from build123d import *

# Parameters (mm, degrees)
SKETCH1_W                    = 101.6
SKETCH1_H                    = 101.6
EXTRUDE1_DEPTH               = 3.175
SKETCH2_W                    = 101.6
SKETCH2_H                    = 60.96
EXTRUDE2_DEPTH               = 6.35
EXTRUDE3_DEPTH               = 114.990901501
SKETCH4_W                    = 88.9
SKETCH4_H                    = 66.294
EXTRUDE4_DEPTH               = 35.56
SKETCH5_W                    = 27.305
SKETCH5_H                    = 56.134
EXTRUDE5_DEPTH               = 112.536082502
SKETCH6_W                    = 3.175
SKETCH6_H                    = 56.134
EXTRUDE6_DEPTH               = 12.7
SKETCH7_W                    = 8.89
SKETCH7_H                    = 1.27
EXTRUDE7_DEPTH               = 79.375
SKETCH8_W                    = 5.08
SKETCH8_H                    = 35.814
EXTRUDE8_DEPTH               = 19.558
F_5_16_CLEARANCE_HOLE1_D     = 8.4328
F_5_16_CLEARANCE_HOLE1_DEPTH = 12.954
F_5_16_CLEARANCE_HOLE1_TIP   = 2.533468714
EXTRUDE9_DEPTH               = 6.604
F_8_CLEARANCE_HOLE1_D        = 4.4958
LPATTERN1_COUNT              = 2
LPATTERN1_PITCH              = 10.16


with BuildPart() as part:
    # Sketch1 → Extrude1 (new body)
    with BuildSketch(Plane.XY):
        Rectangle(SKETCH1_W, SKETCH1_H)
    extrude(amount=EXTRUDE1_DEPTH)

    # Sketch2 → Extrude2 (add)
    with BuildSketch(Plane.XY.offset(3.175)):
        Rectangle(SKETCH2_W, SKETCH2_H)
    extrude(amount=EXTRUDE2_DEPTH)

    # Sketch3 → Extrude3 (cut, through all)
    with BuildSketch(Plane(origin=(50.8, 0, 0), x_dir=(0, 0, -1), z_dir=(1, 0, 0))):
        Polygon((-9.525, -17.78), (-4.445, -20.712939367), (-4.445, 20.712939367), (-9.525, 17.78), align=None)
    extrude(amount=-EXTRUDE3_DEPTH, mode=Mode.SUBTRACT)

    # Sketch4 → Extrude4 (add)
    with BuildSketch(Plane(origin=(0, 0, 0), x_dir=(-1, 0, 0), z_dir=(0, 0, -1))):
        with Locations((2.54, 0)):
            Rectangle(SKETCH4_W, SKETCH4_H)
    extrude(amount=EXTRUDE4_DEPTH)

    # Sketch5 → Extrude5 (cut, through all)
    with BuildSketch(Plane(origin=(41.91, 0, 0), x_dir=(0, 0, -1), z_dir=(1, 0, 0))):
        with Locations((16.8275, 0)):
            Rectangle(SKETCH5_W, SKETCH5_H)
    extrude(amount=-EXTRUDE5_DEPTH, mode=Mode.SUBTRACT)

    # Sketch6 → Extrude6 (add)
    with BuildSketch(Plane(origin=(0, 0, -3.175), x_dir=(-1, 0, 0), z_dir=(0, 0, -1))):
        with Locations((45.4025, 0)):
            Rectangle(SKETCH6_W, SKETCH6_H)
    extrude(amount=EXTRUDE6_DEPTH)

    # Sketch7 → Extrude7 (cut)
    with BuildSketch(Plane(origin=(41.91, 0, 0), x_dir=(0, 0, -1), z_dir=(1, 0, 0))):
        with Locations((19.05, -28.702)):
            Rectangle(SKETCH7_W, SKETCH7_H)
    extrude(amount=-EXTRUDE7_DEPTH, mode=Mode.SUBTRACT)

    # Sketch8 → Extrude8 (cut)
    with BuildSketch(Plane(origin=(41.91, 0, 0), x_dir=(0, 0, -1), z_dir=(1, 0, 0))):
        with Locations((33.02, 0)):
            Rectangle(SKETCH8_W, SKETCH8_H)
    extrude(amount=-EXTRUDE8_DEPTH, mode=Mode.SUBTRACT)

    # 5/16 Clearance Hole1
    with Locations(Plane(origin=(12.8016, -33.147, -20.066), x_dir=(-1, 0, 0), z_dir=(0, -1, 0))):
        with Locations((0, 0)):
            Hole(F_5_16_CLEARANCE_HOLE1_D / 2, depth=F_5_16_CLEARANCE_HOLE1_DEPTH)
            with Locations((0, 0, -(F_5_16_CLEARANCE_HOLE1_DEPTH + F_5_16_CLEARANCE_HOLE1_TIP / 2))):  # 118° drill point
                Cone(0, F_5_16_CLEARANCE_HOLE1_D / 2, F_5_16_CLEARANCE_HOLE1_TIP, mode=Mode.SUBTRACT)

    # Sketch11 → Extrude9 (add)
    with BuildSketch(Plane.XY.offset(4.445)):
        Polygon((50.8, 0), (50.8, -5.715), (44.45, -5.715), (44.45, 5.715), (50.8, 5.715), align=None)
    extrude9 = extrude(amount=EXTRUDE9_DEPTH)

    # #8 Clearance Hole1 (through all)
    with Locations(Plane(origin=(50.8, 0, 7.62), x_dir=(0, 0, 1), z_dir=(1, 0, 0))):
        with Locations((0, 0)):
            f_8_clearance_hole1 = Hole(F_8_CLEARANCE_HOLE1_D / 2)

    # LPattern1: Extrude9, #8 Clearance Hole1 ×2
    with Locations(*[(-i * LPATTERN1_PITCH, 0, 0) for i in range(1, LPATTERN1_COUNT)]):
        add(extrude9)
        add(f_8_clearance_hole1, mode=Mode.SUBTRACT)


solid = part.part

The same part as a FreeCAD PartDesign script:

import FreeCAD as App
import Part
import Sketcher

V = App.Vector
Q = App.Units.Quantity


def add_polygon(sketch, points):
    """Adds a closed chain of lines whose ends are joined by coincident constraints."""
    first, n = sketch.GeometryCount, len(points)
    for a, b in zip(points, points[1:] + points[:1]):
        sketch.addGeometry(Part.LineSegment(App.Vector(*a, 0), App.Vector(*b, 0)), False)
    for i in range(n):
        sketch.addConstraint(Sketcher.Constraint("Coincident", first + i, 2, first + (i + 1) % n, 1))

doc = App.newDocument("Part")
body = doc.addObject("PartDesign::Body", "Body")

# Sketch on XY plane
sketch1 = body.newObject("Sketcher::SketchObject", "Sketch")
sketch1.AttachmentSupport = (doc.getObject("XY_Plane"), [""])
sketch1.MapMode = "FlatFace"
add_polygon(sketch1, [(-51, 51), (-51, -51), (51, -51), (51, 51)])  # lines 0-3
sketch1.addConstraint(Sketcher.Constraint("Vertical", 0))
sketch1.addConstraint(Sketcher.Constraint("Horizontal", 1))
sketch1.addConstraint(Sketcher.Constraint("Vertical", 2))
sketch1.addConstraint(Sketcher.Constraint("Horizontal", 3))
sketch1.addConstraint(Sketcher.Constraint("Symmetric", 0, 2, 2, 2, -1, 1))
sketch1.addConstraint(Sketcher.Constraint("Equal", 3, 0))
sketch1.addConstraint(Sketcher.Constraint("DistanceX", 1, 1, 1, 2, Q("4 in")))
pad1 = body.newObject("PartDesign::Pad", "Pad")
pad1.Profile = sketch1
pad1.Length = Q("0.125 in")

# Sketch on XY plane
sketch2 = body.newObject("Sketcher::SketchObject", "Sketch001")
sketch2.AttachmentSupport = (doc.getObject("XY_Plane"), [""])
sketch2.MapMode = "FlatFace"
sketch2.AttachmentOffset = App.Placement(V(0, 0, 0.125 * 25.4), App.Rotation())
add_polygon(sketch2, [(-51, 30), (-51, -30), (51, -30), (51, 30)])  # lines 0-3
sketch2.addConstraint(Sketcher.Constraint("Vertical", 0))
sketch2.addConstraint(Sketcher.Constraint("Horizontal", 1))
sketch2.addConstraint(Sketcher.Constraint("Vertical", 2))
sketch2.addConstraint(Sketcher.Constraint("Horizontal", 3))
sketch2.addConstraint(Sketcher.Constraint("Symmetric", 0, 2, 2, 2, -1, 1))
sketch2.addConstraint(Sketcher.Constraint("DistanceX", 1, 1, 1, 2, Q("4 in")))
sketch2.addConstraint(Sketcher.Constraint("DistanceY", 0, 2, 0, 1, Q("2.4 in")))
pad2 = body.newObject("PartDesign::Pad", "Pad001")
pad2.Profile = sketch2
pad2.Length = Q("0.25 in")

# Sketch on YZ plane
sketch3 = body.newObject("Sketcher::SketchObject", "Sketch002")
sketch3.AttachmentSupport = (doc.getObject("YZ_Plane"), [""])
sketch3.MapMode = "FlatFace"
sketch3.AttachmentOffset = App.Placement(V(0, 0, 2 * 25.4), App.Rotation())
add_polygon(sketch3, [(-18, 10), (-21, 4), (21, 4), (18, 10)])  # lines 0-3
sketch3.addConstraint(Sketcher.Constraint("Horizontal", 1))
sketch3.addConstraint(Sketcher.Constraint("Horizontal", 3))
sketch3.addConstraint(Sketcher.Constraint("Equal", 0, 2))
sketch3.addConstraint(Sketcher.Constraint("DistanceX", 3, 2, 3, 1, Q("1.4 in")))
sketch3.addConstraint(Sketcher.Constraint("Angle", 0, Q("-120 deg")))
sketch3.addConstraint(Sketcher.Constraint("DistanceX", -1, 1, 2, 2, Q("0.7 in")))
sketch3.addConstraint(Sketcher.Constraint("DistanceY", 1, 2, 2, 2, Q("0.2 in")))
sketch3.addConstraint(Sketcher.Constraint("DistanceY", -1, 1, 0, 2, Q("0.175 in")))
pocket1 = body.newObject("PartDesign::Pocket", "Pocket")
pocket1.Profile = sketch3
pocket1.Type = "ThroughAll"

# Sketch on XY plane
sketch4 = body.newObject("Sketcher::SketchObject", "Sketch003")
sketch4.AttachmentSupport = (doc.getObject("XY_Plane"), [""])
sketch4.MapMode = "FlatFace"
add_polygon(sketch4, [(42, 33), (42, -33), (-47, -33), (-47, 33)])  # lines 0-3
sketch4.addConstraint(Sketcher.Constraint("Vertical", 0))
sketch4.addConstraint(Sketcher.Constraint("Horizontal", 1))
sketch4.addConstraint(Sketcher.Constraint("Vertical", 2))
sketch4.addConstraint(Sketcher.Constraint("Horizontal", 3))
sketch4.addConstraint(Sketcher.Constraint("DistanceX", 1, 2, 1, 1, Q("3.5 in")))
sketch4.addConstraint(Sketcher.Constraint("DistanceY", 0, 2, 0, 1, Q("2.61 in")))
sketch4.addConstraint(Sketcher.Constraint("DistanceX", -1, 1, 0, 2, Q("1.65 in")))
sketch4.addConstraint(Sketcher.Constraint("DistanceY", 0, 2, -1, 1, Q("1.305 in")))
pad3 = body.newObject("PartDesign::Pad", "Pad002")
pad3.Profile = sketch4
pad3.Length = Q("1.4 in")
pad3.Reversed = True

# Sketch on YZ plane
sketch5 = body.newObject("Sketcher::SketchObject", "Sketch004")
sketch5.AttachmentSupport = (doc.getObject("YZ_Plane"), [""])
sketch5.MapMode = "FlatFace"
sketch5.AttachmentOffset = App.Placement(V(0, 0, 1.65 * 25.4), App.Rotation())
add_polygon(sketch5, [(28, -3), (-28, -3), (-28, -30), (28, -30)])  # lines 0-3
sketch5.addConstraint(Sketcher.Constraint("Horizontal", 0))
sketch5.addConstraint(Sketcher.Constraint("Vertical", 1))
sketch5.addConstraint(Sketcher.Constraint("Horizontal", 2))
sketch5.addConstraint(Sketcher.Constraint("Vertical", 3))
sketch5.addConstraint(Sketcher.Constraint("DistanceX", 0, 2, 0, 1, Q("2.21 in")))
sketch5.addConstraint(Sketcher.Constraint("DistanceY", 1, 2, -1, 1, Q("1.2 in")))
sketch5.addConstraint(Sketcher.Constraint("DistanceY", 1, 2, 1, 1, Q("1.075 in")))
sketch5.addConstraint(Sketcher.Constraint("DistanceX", 0, 2, -1, 1, Q("1.105 in")))
pocket2 = body.newObject("PartDesign::Pocket", "Pocket001")
pocket2.Profile = sketch5
pocket2.Type = "ThroughAll"

# Sketch on XY plane
sketch6 = body.newObject("Sketcher::SketchObject", "Sketch005")
sketch6.AttachmentSupport = (doc.getObject("XY_Plane"), [""])
sketch6.MapMode = "FlatFace"
sketch6.AttachmentOffset = App.Placement(V(0, 0, -0.125 * 25.4), App.Rotation())
add_polygon(sketch6, [(-43.8, 28.1), (-43.8, -28.1), (-47, -28.1), (-47, 28.1)])  # lines 0-3
sketch6.addConstraint(Sketcher.Constraint("Vertical", 0))
sketch6.addConstraint(Sketcher.Constraint("Horizontal", 1))
sketch6.addConstraint(Sketcher.Constraint("Vertical", 2))
sketch6.addConstraint(Sketcher.Constraint("Horizontal", 3))
sketch6.addConstraint(Sketcher.Constraint("DistanceY", 0, 2, 0, 1, Q("2.21 in")))
sketch6.addConstraint(Sketcher.Constraint("DistanceX", 1, 2, 1, 1, Q("0.125 in")))
sketch6.addConstraint(Sketcher.Constraint("DistanceX", 1, 2, -1, 1, Q("1.85 in")))
sketch6.addConstraint(Sketcher.Constraint("DistanceY", 0, 2, -1, 1, Q("1.105 in")))
pad4 = body.newObject("PartDesign::Pad", "Pad003")
pad4.Profile = sketch6
pad4.Length = Q("0.5 in")
pad4.Reversed = True

# Sketch on YZ plane
sketch7 = body.newObject("Sketcher::SketchObject", "Sketch006")
sketch7.AttachmentSupport = (doc.getObject("YZ_Plane"), [""])
sketch7.MapMode = "FlatFace"
sketch7.AttachmentOffset = App.Placement(V(0, 0, 1.65 * 25.4), App.Rotation())
add_polygon(sketch7, [(-28.1, -14.6), (-29.3, -14.6), (-29.3, -23.5), (-28.1, -23.5)])  # lines 0-3
sketch7.addConstraint(Sketcher.Constraint("Horizontal", 0))
sketch7.addConstraint(Sketcher.Constraint("Vertical", 1))
sketch7.addConstraint(Sketcher.Constraint("Horizontal", 2))
sketch7.addConstraint(Sketcher.Constraint("Vertical", 3))
sketch7.addConstraint(Sketcher.Constraint("DistanceX", 0, 2, 0, 1, Q("0.05 in")))
sketch7.addConstraint(Sketcher.Constraint("DistanceY", 1, 2, 1, 1, Q("0.35 in")))
sketch7.addConstraint(Sketcher.Constraint("DistanceX", 0, 2, -1, 1, Q("1.155 in")))
sketch7.addConstraint(Sketcher.Constraint("DistanceY", 0, 2, -1, 1, Q("0.575 in")))
pocket3 = body.newObject("PartDesign::Pocket", "Pocket002")
pocket3.Profile = sketch7
pocket3.Length = Q("3.125 in")

# Sketch on YZ plane
sketch8 = body.newObject("Sketcher::SketchObject", "Sketch007")
sketch8.AttachmentSupport = (doc.getObject("YZ_Plane"), [""])
sketch8.MapMode = "FlatFace"
sketch8.AttachmentOffset = App.Placement(V(0, 0, 1.65 * 25.4), App.Rotation())
add_polygon(sketch8, [(18, -30), (-18, -30), (-18, -36), (18, -36)])  # lines 0-3
sketch8.addConstraint(Sketcher.Constraint("Horizontal", 0))
sketch8.addConstraint(Sketcher.Constraint("Vertical", 1))
sketch8.addConstraint(Sketcher.Constraint("Horizontal", 2))
sketch8.addConstraint(Sketcher.Constraint("Vertical", 3))
sketch8.addConstraint(Sketcher.Constraint("DistanceY", 1, 2, 1, 1, Q("0.2 in")))
sketch8.addConstraint(Sketcher.Constraint("DistanceX", 0, 2, 0, 1, Q("1.41 in")))
sketch8.addConstraint(Sketcher.Constraint("DistanceY", 0, 2, -1, 1, Q("1.2 in")))
sketch8.addConstraint(Sketcher.Constraint("DistanceX", 0, 2, -1, 1, Q("0.705 in")))
pocket4 = body.newObject("PartDesign::Pocket", "Pocket003")
pocket4.Profile = sketch8
pocket4.Length = Q("0.77 in")

# Sketch on XZ plane
sketch9 = body.newObject("Sketcher::SketchObject", "Sketch008")
sketch9.AttachmentSupport = (doc.getObject("XZ_Plane"), [""])
sketch9.MapMode = "FlatFace"
sketch9.AttachmentOffset = App.Placement(V(0, 0, 1.305 * 25.4), App.Rotation())
sketch9.addGeometry(Part.Circle(V(12.8, -20.1, 0), V(0, 0, 1), 4.2), False)
sketch9.addConstraint(Sketcher.Constraint("Diameter", 0, Q("0.332 in")))
sketch9.addConstraint(Sketcher.Constraint("DistanceY", 0, 3, -1, 1, Q("0.79 in")))
sketch9.addConstraint(Sketcher.Constraint("DistanceX", -1, 1, 0, 3, Q("0.504 in")))
doc.recompute()
hole = body.newObject("PartDesign::Hole", "Hole")
hole.Profile = sketch9
hole.ThreadType = "None"
hole.Diameter = Q("0.332 in")
hole.DepthType = "Dimension"
hole.Depth = Q("0.51 in")
hole.DrillPoint = "Angled"
hole.DrillPointAngle = 118

# Sketch on XY plane
sketch10 = body.newObject("Sketcher::SketchObject", "Sketch009")
sketch10.AttachmentSupport = (doc.getObject("XY_Plane"), [""])
sketch10.MapMode = "FlatFace"
sketch10.AttachmentOffset = App.Placement(V(0, 0, 0.175 * 25.4), App.Rotation())
add_polygon(sketch10, [(51, -6), (51, 6), (44, 6), (44, -6)])  # lines 0-3
sketch10.addConstraint(Sketcher.Constraint("Vertical", 0))
sketch10.addConstraint(Sketcher.Constraint("Horizontal", 1))
sketch10.addConstraint(Sketcher.Constraint("Vertical", 2))
sketch10.addConstraint(Sketcher.Constraint("Horizontal", 3))
sketch10.addConstraint(Sketcher.Constraint("DistanceX", -1, 1, 0, 2, Q("2 in")))
sketch10.addConstraint(Sketcher.Constraint("DistanceX", 1, 2, 1, 1, Q("0.25 in")))
sketch10.addConstraint(Sketcher.Constraint("DistanceY", 0, 1, 0, 2, Q("0.45 in")))
sketch10.addConstraint(Sketcher.Constraint("DistanceY", -1, 1, 0, 2, Q("0.225 in")))
pad5 = body.newObject("PartDesign::Pad", "Pad004")
pad5.Profile = sketch10
pad5.Length = Q("0.26 in")

# Sketch on YZ plane
sketch11 = body.newObject("Sketcher::SketchObject", "Sketch010")
sketch11.AttachmentSupport = (doc.getObject("YZ_Plane"), [""])
sketch11.MapMode = "FlatFace"
sketch11.AttachmentOffset = App.Placement(V(0, 0, 2 * 25.4), App.Rotation())
sketch11.addGeometry(Part.Circle(V(0, 7.6, 0), V(0, 0, 1), 2.2), False)
sketch11.addConstraint(Sketcher.Constraint("PointOnObject", 0, 3, -2))
sketch11.addConstraint(Sketcher.Constraint("Diameter", 0, Q("0.177 in")))
sketch11.addConstraint(Sketcher.Constraint("DistanceY", -1, 1, 0, 3, Q("0.3 in")))
doc.recompute()
hole2 = body.newObject("PartDesign::Hole", "Hole001")
hole2.Profile = sketch11
hole2.ThreadType = "None"
hole2.Diameter = Q("0.177 in")
hole2.DepthType = "ThroughAll"
doc.recompute()

linearpattern = body.newObject("PartDesign::LinearPattern", "LinearPattern")
linearpattern.Originals = [pad5, hole2]
linearpattern.Direction = (doc.getObject("X_Axis"), [""])
linearpattern.Mode = "offset"
linearpattern.Offset = Q("0.4 in")
linearpattern.Occurrences = 2
linearpattern.Reversed = True
body.Tip = linearpattern

doc.recompute()
